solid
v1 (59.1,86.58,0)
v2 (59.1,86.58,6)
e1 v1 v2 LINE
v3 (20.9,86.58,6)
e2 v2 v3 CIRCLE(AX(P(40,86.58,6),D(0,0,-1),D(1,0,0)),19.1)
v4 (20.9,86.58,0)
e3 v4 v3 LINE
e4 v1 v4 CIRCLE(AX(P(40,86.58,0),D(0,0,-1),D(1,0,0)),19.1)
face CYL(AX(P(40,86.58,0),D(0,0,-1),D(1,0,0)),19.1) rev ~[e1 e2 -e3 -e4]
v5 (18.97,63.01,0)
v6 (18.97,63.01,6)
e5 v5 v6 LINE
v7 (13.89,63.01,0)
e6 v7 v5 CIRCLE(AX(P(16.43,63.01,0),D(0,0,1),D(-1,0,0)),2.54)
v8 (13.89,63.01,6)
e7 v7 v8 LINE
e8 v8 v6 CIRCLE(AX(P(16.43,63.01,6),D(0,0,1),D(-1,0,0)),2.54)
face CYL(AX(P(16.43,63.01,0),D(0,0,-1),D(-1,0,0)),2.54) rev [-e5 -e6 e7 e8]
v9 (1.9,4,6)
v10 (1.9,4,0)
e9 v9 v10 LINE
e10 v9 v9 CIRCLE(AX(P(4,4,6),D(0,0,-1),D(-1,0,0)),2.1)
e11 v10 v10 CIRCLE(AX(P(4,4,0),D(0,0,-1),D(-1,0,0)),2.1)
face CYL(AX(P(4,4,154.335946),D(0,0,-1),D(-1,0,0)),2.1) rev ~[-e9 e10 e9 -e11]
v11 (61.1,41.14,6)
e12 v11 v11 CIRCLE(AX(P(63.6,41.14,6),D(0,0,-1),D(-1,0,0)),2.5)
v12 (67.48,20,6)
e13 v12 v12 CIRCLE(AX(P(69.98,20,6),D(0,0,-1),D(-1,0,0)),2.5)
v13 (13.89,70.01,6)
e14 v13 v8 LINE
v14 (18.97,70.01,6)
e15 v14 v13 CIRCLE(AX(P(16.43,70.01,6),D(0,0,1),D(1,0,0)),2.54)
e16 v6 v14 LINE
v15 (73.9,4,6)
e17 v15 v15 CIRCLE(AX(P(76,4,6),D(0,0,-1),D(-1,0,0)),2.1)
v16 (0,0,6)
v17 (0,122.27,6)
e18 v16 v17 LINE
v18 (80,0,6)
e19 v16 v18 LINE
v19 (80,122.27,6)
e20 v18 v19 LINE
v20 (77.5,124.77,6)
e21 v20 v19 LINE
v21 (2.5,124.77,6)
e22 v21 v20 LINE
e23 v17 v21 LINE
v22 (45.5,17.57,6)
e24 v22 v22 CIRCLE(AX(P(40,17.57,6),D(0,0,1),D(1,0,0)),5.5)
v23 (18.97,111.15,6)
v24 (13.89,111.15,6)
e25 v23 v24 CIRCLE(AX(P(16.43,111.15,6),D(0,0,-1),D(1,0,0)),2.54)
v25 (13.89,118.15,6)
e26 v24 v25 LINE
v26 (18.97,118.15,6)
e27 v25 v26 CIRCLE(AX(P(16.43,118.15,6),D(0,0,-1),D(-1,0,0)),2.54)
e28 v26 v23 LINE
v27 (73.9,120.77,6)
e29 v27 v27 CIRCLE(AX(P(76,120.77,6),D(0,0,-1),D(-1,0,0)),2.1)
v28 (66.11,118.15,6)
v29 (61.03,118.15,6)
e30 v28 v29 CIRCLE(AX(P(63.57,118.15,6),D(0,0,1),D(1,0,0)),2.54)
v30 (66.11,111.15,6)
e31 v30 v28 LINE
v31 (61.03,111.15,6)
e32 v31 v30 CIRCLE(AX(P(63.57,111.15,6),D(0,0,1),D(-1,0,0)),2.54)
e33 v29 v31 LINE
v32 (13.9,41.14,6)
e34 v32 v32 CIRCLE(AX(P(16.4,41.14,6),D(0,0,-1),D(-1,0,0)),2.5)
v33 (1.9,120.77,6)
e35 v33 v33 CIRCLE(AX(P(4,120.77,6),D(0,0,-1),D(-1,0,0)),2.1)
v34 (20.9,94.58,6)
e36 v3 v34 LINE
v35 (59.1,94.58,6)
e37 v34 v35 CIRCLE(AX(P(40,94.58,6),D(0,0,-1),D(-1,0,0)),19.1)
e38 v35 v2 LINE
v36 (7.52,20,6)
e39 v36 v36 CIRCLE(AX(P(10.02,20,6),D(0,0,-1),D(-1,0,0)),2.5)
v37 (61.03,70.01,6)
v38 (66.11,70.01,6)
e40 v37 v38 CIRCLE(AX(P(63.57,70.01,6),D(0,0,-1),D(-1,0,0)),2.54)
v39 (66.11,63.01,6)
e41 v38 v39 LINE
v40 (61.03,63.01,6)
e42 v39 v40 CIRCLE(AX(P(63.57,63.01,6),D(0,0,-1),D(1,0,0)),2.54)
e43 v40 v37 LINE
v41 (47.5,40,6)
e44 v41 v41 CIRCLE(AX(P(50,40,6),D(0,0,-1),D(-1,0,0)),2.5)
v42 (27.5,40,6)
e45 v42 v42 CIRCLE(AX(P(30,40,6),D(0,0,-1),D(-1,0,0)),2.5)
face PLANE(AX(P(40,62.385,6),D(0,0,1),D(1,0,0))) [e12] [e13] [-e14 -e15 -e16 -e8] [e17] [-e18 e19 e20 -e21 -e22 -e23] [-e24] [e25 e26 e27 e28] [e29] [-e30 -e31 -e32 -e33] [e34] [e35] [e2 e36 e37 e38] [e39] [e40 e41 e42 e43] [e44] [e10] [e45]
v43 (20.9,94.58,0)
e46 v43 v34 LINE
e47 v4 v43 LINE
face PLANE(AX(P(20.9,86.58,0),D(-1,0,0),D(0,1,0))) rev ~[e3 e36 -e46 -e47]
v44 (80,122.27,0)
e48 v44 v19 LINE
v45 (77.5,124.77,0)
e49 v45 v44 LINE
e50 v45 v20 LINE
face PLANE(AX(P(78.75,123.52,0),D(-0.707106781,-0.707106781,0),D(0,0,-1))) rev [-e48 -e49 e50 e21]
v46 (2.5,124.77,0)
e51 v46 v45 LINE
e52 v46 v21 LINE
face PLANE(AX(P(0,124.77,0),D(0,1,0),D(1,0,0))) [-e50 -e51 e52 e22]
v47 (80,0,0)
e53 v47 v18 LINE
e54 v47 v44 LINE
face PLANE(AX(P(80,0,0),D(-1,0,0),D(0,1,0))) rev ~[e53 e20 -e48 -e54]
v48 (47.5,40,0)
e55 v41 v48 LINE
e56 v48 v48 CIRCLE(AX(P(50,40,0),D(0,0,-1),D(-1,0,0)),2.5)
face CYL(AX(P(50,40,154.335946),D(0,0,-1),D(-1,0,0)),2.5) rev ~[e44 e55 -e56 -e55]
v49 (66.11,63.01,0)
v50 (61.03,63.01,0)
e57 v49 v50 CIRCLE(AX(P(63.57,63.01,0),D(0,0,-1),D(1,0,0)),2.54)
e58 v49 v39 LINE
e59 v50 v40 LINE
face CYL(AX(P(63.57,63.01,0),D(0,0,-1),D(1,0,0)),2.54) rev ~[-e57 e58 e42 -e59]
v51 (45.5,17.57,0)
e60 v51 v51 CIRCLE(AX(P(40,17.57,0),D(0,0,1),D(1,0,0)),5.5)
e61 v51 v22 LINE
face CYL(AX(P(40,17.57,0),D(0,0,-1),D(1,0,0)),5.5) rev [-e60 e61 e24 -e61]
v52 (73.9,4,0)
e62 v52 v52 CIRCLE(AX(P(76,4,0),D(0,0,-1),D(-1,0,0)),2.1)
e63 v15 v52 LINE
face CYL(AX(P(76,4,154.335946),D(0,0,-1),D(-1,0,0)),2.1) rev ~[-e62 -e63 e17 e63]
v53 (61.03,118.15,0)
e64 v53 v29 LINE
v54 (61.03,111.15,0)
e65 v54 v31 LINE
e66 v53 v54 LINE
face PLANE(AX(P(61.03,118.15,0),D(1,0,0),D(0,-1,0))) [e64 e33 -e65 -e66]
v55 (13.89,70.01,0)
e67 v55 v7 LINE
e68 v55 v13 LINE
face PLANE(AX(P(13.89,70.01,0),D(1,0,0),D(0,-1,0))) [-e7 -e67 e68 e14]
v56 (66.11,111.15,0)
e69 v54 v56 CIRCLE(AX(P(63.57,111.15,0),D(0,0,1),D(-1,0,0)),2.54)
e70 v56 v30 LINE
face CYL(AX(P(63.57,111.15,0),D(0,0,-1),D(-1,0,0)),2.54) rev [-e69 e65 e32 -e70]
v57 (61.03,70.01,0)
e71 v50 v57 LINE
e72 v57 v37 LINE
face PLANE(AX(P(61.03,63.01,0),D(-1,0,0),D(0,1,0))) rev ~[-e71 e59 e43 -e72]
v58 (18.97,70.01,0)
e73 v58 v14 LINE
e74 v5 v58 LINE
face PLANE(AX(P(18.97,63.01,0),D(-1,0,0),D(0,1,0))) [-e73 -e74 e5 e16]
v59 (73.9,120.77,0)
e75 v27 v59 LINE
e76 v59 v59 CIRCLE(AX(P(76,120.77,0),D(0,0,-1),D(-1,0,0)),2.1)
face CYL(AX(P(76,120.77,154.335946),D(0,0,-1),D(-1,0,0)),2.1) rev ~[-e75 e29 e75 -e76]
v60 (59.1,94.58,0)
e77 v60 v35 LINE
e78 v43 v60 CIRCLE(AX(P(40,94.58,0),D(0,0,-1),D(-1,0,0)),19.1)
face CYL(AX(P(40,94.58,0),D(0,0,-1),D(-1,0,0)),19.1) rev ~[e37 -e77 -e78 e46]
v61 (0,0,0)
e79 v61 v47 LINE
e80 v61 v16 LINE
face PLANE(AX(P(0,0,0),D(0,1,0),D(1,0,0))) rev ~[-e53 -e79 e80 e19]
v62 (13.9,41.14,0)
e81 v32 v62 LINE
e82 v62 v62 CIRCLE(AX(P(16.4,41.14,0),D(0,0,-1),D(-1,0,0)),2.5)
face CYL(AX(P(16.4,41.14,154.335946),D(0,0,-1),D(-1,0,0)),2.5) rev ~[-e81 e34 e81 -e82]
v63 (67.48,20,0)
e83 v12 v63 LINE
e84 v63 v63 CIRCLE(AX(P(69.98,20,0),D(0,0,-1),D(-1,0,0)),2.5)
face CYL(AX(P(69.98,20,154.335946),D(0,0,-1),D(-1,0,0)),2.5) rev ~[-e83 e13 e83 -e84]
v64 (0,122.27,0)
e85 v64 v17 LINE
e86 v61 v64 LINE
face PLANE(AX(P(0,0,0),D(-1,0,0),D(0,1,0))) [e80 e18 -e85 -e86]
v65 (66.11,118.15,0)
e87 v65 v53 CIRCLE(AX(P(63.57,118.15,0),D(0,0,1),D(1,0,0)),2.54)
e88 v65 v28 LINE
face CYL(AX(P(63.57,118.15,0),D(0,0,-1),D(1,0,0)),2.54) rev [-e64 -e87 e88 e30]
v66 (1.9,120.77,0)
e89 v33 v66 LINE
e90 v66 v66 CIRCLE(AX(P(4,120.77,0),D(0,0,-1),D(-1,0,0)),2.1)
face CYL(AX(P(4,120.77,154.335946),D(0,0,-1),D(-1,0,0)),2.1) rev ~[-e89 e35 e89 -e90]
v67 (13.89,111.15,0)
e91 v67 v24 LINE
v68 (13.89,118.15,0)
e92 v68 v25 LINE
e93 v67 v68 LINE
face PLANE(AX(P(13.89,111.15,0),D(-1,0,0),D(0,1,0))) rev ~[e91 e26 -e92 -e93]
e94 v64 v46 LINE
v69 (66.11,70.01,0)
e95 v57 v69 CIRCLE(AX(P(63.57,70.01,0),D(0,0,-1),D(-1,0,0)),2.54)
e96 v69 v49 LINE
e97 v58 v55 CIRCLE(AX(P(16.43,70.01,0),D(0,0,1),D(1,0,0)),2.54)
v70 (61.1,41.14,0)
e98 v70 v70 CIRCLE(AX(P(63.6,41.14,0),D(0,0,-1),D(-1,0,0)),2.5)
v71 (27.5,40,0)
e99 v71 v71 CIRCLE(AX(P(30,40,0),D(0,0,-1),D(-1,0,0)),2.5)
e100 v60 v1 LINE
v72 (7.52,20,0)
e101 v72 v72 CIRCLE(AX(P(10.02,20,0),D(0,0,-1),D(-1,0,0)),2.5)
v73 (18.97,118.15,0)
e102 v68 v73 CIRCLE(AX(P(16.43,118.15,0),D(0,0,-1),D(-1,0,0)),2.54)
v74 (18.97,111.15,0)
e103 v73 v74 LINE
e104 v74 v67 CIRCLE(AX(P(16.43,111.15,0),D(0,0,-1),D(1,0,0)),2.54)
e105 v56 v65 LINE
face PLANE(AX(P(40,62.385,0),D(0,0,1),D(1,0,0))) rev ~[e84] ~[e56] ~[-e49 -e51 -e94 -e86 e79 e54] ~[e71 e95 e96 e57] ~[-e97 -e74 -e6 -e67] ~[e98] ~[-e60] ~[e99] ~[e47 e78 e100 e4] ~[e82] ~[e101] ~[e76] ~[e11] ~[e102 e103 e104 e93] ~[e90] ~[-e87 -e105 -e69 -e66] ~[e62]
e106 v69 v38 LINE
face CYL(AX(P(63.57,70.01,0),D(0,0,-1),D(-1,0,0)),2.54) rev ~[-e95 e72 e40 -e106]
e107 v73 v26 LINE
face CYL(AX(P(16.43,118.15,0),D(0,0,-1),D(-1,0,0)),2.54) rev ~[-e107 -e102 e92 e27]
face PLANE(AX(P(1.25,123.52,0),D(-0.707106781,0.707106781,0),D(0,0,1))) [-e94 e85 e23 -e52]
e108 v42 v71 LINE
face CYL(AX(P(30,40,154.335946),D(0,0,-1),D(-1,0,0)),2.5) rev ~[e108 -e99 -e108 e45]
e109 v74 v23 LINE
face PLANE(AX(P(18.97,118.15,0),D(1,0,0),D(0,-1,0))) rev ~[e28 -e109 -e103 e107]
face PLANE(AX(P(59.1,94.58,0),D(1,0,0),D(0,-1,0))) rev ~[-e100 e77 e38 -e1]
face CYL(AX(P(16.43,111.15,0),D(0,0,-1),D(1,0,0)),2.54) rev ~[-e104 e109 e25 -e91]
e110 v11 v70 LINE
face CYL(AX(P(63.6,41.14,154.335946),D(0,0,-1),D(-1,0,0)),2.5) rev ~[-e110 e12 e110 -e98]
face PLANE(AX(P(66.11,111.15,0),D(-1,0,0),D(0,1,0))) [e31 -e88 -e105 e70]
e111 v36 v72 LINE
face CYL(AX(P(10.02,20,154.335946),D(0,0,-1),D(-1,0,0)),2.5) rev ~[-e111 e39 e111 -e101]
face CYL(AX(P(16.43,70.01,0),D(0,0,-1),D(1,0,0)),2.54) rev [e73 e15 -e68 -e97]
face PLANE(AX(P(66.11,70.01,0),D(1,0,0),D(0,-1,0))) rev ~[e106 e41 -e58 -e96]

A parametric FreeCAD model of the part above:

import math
import FreeCAD as App
import Part
import Sketcher
from FreeCAD import Vector
Q = App.Units.Quantity


def edges_at(feature, points):
    """Names of the edges that pass closest to the given points."""
    edges = feature.Shape.Edges
    near = lambda p: min(range(len(edges)), key=lambda i: edges[i].distToShape(Part.Vertex(*p))[0])
    return sorted({f"Edge{near(p) + 1}" for p in points})

doc = App.newDocument("Part")
body = doc.addObject("PartDesign::Body", "Body")

sketch1 = body.newObject("Sketcher::SketchObject", "Sketch")
sketch1.AttachmentSupport = (doc.getObject("XY_Plane"), [""])
sketch1.MapMode = "FlatFace"
sketch1.addGeometry([
    Part.LineSegment(Vector(0, 124.8, 0), Vector(0, 0, 0)),
    Part.LineSegment(Vector(0, 0, 0), Vector(80, 0, 0)),
    Part.LineSegment(Vector(80, 0, 0), Vector(80, 124.8, 0)),
    Part.LineSegment(Vector(80, 124.8, 0), Vector(0, 124.8, 0)),
    Part.Circle(Vector(40, 17.6, 0), Vector(0, 0, 1), 5.5),
    Part.LineSegment(Vector(19, 70, 0), Vector(19, 63, 0)),
    Part.ArcOfCircle(Part.Circle(Vector(16.4, 63, 0), Vector(0, 0, 1), 2.5), math.radians(180), math.radians(360)),
    Part.LineSegment(Vector(13.9, 63, 0), Vector(13.9, 70, 0)),
    Part.ArcOfCircle(Part.Circle(Vector(16.4, 70, 0), Vector(0, 0, 1), 2.5), math.radians(0), math.radians(180)),
    Part.ArcOfCircle(Part.Circle(Vector(16.4, 118.2, 0), Vector(0, 0, 1), 2.5), math.radians(0), math.radians(180)),
    Part.LineSegment(Vector(19, 118.2, 0), Vector(19, 111.2, 0)),
    Part.ArcOfCircle(Part.Circle(Vector(16.4, 111.2, 0), Vector(0, 0, 1), 2.5), math.radians(180), math.radians(360)),
    Part.LineSegment(Vector(13.9, 111.2, 0), Vector(13.9, 118.2, 0)),
    Part.ArcOfCircle(Part.Circle(Vector(40, 94.6, 0), Vector(0, 0, 1), 19.1), math.radians(0), math.radians(180)),
    Part.LineSegment(Vector(59.1, 94.6, 0), Vector(59.1, 86.6, 0)),
    Part.ArcOfCircle(Part.Circle(Vector(40, 86.6, 0), Vector(0, 0, 1), 19.1), math.radians(180), math.radians(360)),
    Part.LineSegment(Vector(20.9, 86.6, 0), Vector(20.9, 94.6, 0)),
    Part.ArcOfCircle(Part.Circle(Vector(63.6, 63, 0), Vector(0, 0, 1), 2.5), math.radians(180), math.radians(360)),
    Part.LineSegment(Vector(61, 63, 0), Vector(61, 70, 0)),
    Part.ArcOfCircle(Part.Circle(Vector(63.6, 70, 0), Vector(0, 0, 1), 2.5), math.radians(0), math.radians(180)),
    Part.LineSegment(Vector(66.1, 70, 0), Vector(66.1, 63, 0)),
    Part.LineSegment(Vector(61, 111.2, 0), Vector(61, 118.2, 0)),
    Part.ArcOfCircle(Part.Circle(Vector(63.6, 118.2, 0), Vector(0, 0, 1), 2.5), math.radians(0), math.radians(180)),
    Part.LineSegment(Vector(66.1, 118.2, 0), Vector(66.1, 111.2, 0)),
    Part.ArcOfCircle(Part.Circle(Vector(63.6, 111.2, 0), Vector(0, 0, 1), 2.5), math.radians(180), math.radians(360)),
], False)
sketch1.addConstraint([
    Sketcher.Constraint("Coincident", 0, 2, 1, 1),
    Sketcher.Constraint("Coincident", 1, 2, 2, 1),
    Sketcher.Constraint("Coincident", 2, 2, 3, 1),
    Sketcher.Constraint("Coincident", 3, 2, 0, 1),
    Sketcher.Constraint("Tangent", 5, 2, 6, 2),
    Sketcher.Constraint("Tangent", 6, 1, 7, 1),
    Sketcher.Constraint("Tangent", 7, 2, 8, 2),
    Sketcher.Constraint("Tangent", 8, 1, 5, 1),
    Sketcher.Constraint("Tangent", 9, 1, 10, 1),
    Sketcher.Constraint("Tangent", 10, 2, 11, 2),
    Sketcher.Constraint("Tangent", 11, 1, 12, 1),
    Sketcher.Constraint("Tangent", 12, 2, 9, 2),
    Sketcher.Constraint("Tangent", 13, 1, 14, 1),
    Sketcher.Constraint("Tangent", 14, 2, 15, 2),
    Sketcher.Constraint("Tangent", 15, 1, 16, 1),
    Sketcher.Constraint("Tangent", 16, 2, 13, 2),
    Sketcher.Constraint("Tangent", 17, 1, 18, 1),
    Sketcher.Constraint("Tangent", 18, 2, 19, 2),
    Sketcher.Constraint("Tangent", 19, 1, 20, 1),
    Sketcher.Constraint("Tangent", 20, 2, 17, 2),
    Sketcher.Constraint("Tangent", 21, 2, 22, 2),
    Sketcher.Constraint("Tangent", 22, 1, 23, 1),
    Sketcher.Constraint("Tangent", 23, 2, 24, 2),
    Sketcher.Constraint("Tangent", 24, 1, 21, 1),
    Sketcher.Constraint("Vertical", 0),
    Sketcher.Constraint("Horizontal", 1),
    Sketcher.Constraint("Vertical", 2),
    Sketcher.Constraint("Horizontal", 3),
    Sketcher.Constraint("Vertical", 5),
    Sketcher.Constraint("Vertical", 7),
    Sketcher.Constraint("Vertical", 10),
    Sketcher.Constraint("Vertical", 12),
    Sketcher.Constraint("Vertical", 14),
    Sketcher.Constraint("Vertical", 16),
    Sketcher.Constraint("Vertical", 18),
    Sketcher.Constraint("Vertical", 20),
    Sketcher.Constraint("Vertical", 21),
    Sketcher.Constraint("Vertical", 23),
    Sketcher.Constraint("Coincident", 0, 2, -1, 1),
    Sketcher.Constraint("Equal", 8, 9),
    Sketcher.Constraint("Equal", 11, 17),
    Sketcher.Constraint("Equal", 19, 22),
    Sketcher.Constraint("Horizontal", 6, 3, 17, 3),
    Sketcher.Constraint("Horizontal", 8, 3, 19, 3),
    Sketcher.Constraint("Horizontal", 9, 3, 22, 3),
    Sketcher.Constraint("Horizontal", 11, 3, 24, 3),
    Sketcher.Constraint("Vertical", 8, 3, 9, 3),
    Sketcher.Constraint("Vertical", 4, 3, 13, 3),
    Sketcher.Constraint("Vertical", 19, 3, 22, 3),
    Sketcher.Constraint("Equal", 7, 10),
    Sketcher.Constraint("Diameter", 4, Q("11 mm")),
    Sketcher.Constraint("Radius", 13, Q("19.1 mm")),
    Sketcher.Constraint("DistanceX", 1, 1, 1, 2, Q("80 mm")),
    Sketcher.Constraint("DistanceY", 5, 2, 5, 1, Q("7 mm")),
    Sketcher.Constraint("DistanceY", 14, 2, 14, 1, Q("8 mm")),
    Sketcher.Constraint("Radius", 6, Q("2.54 mm")),
    Sketcher.Constraint("DistanceX", -1, 1, 4, 3, Q("40 mm")),
    Sketcher.Constraint("DistanceY", 0, 2, 0, 1, Q("124.77 mm")),
    Sketcher.Constraint("DistanceX", 5, 2, 17, 3, Q("44.6 mm")),
    Sketcher.Constraint("DistanceY", -1, 1, 4, 3, Q("17.57 mm")),
    Sketcher.Constraint("DistanceX", -1, 1, 6, 3, Q("16.43 mm")),
    Sketcher.Constraint("DistanceY", -1, 1, 6, 3, Q("63.01 mm")),
    Sketcher.Constraint("DistanceY", -1, 1, 9, 3, Q("118.15 mm")),
    Sketcher.Constraint("DistanceY", -1, 1, 13, 3, Q("94.58 mm")),
])
pad1 = body.newObject("PartDesign::Pad", "Pad")
pad1.Profile = sketch1
pad1.Length = 6

sketch2 = body.newObject("Sketcher::SketchObject", "Sketch001")
sketch2.AttachmentSupport = (doc.getObject("XY_Plane"), [""])
sketch2.MapMode = "FlatFace"
sketch2.AttachmentOffset = App.Placement(Vector(0, 0, 6), App.Rotation())
sketch2.addGeometry([
    Part.Circle(Vector(10, 20, 0), Vector(0, 0, 1), 2.5),
    Part.Circle(Vector(16.4, 41.1, 0), Vector(0, 0, 1), 2.5),
    Part.Circle(Vector(30, 40, 0), Vector(0, 0, 1), 2.5),
    Part.Circle(Vector(50, 40, 0), Vector(0, 0, 1), 2.5),
    Part.Circle(Vector(63.6, 41.1, 0), Vector(0, 0, 1), 2.5),
    Part.Circle(Vector(70, 20, 0), Vector(0, 0, 1), 2.5),
], False)
sketch2.addConstraint([
    Sketcher.Constraint("Equal", 0, 1),
    Sketcher.Constraint("Equal", 1, 2),
    Sketcher.Constraint("Equal", 2, 3),
    Sketcher.Constraint("Equal", 3, 4),
    Sketcher.Constraint("Equal", 4, 5),
    Sketcher.Constraint("Horizontal", 2, 3, 3, 3),
    Sketcher.Constraint("Horizontal", 1, 3, 4, 3),
    Sketcher.Constraint("Horizontal", 0, 3, 5, 3),
    Sketcher.Constraint("Diameter", 0, Q("5 mm")),
    Sketcher.Constraint("DistanceY", -1, 1, 0, 3, Q("20 mm")),
    Sketcher.Constraint("DistanceX", -1, 1, 2, 3, Q("30 mm")),
    Sketcher.Constraint("DistanceY", -1, 1, 2, 3, Q("40 mm")),
    Sketcher.Constraint("DistanceX", -1, 1, 3, 3, Q("50 mm")),
    Sketcher.Constraint("DistanceX", -1, 1, 1, 3, Q("16.4 mm")),
    Sketcher.Constraint("DistanceX", -1, 1, 4, 3, Q("63.6 mm")),
    Sketcher.Constraint("DistanceX", -1, 1, 0, 3, Q("10.02 mm")),
    Sketcher.Constraint("DistanceY", -1, 1, 1, 3, Q("41.14 mm")),
    Sketcher.Constraint("DistanceX", -1, 1, 5, 3, Q("69.98 mm")),
])
doc.recompute()
hole = body.newObject("PartDesign::Hole", "Hole")
hole.Profile = sketch2
hole.ThreadType = "None"
hole.Diameter = 5
hole.DepthType = "ThroughAll"

sketch3 = body.newObject("Sketcher::SketchObject", "Sketch002")
sketch3.AttachmentSupport = (doc.getObject("XY_Plane"), [""])
sketch3.MapMode = "FlatFace"
sketch3.AttachmentOffset = App.Placement(Vector(0, 0, 6), App.Rotation())
sketch3.addGeometry([
    Part.Circle(Vector(4, 120.8, 0), Vector(0, 0, 1), 2.1),
    Part.Circle(Vector(76, 120.8, 0), Vector(0, 0, 1), 2.1),
    Part.Circle(Vector(76, 4, 0), Vector(0, 0, 1), 2.1),
    Part.Circle(Vector(4, 4, 0), Vector(0, 0, 1), 2.1),
], False)
sketch3.addConstraint([
    Sketcher.Constraint("Equal", 0, 1),
    Sketcher.Constraint("Equal", 1, 2),
    Sketcher.Constraint("Equal", 2, 3),
    Sketcher.Constraint("Horizontal", 0, 3, 1, 3),
    Sketcher.Constraint("Horizontal", 2, 3, 3, 3),
    Sketcher.Constraint("Vertical", 1, 3, 2, 3),
    Sketcher.Constraint("Vertical", 0, 3, 3, 3),
    Sketcher.Constraint("Diameter", 0, Q("4.2 mm")),
    Sketcher.Constraint("DistanceX", -1, 1, 0, 3, Q("4 mm")),
    Sketcher.Constraint("DistanceX", -1, 1, 1, 3, Q("76 mm")),
    Sketcher.Constraint("DistanceY", -1, 1, 2, 3, Q("4 mm")),
    Sketcher.Constraint("DistanceY", -1, 1, 0, 3, Q("120.77 mm")),
])
doc.recompute()
hole2 = body.newObject("PartDesign::Hole", "Hole001")
hole2.Profile = sketch3
hole2.ThreadType = "None"
hole2.Diameter = 4.2
hole2.DepthType = "ThroughAll"
doc.recompute()

chamfer = body.newObject("PartDesign::Chamfer", "Chamfer")
chamfer.Base = (hole2, edges_at(hole2, [(0, 124.77, 3), (80, 124.77, 3)]))
chamfer.Size = 2.5

doc.recompute()
